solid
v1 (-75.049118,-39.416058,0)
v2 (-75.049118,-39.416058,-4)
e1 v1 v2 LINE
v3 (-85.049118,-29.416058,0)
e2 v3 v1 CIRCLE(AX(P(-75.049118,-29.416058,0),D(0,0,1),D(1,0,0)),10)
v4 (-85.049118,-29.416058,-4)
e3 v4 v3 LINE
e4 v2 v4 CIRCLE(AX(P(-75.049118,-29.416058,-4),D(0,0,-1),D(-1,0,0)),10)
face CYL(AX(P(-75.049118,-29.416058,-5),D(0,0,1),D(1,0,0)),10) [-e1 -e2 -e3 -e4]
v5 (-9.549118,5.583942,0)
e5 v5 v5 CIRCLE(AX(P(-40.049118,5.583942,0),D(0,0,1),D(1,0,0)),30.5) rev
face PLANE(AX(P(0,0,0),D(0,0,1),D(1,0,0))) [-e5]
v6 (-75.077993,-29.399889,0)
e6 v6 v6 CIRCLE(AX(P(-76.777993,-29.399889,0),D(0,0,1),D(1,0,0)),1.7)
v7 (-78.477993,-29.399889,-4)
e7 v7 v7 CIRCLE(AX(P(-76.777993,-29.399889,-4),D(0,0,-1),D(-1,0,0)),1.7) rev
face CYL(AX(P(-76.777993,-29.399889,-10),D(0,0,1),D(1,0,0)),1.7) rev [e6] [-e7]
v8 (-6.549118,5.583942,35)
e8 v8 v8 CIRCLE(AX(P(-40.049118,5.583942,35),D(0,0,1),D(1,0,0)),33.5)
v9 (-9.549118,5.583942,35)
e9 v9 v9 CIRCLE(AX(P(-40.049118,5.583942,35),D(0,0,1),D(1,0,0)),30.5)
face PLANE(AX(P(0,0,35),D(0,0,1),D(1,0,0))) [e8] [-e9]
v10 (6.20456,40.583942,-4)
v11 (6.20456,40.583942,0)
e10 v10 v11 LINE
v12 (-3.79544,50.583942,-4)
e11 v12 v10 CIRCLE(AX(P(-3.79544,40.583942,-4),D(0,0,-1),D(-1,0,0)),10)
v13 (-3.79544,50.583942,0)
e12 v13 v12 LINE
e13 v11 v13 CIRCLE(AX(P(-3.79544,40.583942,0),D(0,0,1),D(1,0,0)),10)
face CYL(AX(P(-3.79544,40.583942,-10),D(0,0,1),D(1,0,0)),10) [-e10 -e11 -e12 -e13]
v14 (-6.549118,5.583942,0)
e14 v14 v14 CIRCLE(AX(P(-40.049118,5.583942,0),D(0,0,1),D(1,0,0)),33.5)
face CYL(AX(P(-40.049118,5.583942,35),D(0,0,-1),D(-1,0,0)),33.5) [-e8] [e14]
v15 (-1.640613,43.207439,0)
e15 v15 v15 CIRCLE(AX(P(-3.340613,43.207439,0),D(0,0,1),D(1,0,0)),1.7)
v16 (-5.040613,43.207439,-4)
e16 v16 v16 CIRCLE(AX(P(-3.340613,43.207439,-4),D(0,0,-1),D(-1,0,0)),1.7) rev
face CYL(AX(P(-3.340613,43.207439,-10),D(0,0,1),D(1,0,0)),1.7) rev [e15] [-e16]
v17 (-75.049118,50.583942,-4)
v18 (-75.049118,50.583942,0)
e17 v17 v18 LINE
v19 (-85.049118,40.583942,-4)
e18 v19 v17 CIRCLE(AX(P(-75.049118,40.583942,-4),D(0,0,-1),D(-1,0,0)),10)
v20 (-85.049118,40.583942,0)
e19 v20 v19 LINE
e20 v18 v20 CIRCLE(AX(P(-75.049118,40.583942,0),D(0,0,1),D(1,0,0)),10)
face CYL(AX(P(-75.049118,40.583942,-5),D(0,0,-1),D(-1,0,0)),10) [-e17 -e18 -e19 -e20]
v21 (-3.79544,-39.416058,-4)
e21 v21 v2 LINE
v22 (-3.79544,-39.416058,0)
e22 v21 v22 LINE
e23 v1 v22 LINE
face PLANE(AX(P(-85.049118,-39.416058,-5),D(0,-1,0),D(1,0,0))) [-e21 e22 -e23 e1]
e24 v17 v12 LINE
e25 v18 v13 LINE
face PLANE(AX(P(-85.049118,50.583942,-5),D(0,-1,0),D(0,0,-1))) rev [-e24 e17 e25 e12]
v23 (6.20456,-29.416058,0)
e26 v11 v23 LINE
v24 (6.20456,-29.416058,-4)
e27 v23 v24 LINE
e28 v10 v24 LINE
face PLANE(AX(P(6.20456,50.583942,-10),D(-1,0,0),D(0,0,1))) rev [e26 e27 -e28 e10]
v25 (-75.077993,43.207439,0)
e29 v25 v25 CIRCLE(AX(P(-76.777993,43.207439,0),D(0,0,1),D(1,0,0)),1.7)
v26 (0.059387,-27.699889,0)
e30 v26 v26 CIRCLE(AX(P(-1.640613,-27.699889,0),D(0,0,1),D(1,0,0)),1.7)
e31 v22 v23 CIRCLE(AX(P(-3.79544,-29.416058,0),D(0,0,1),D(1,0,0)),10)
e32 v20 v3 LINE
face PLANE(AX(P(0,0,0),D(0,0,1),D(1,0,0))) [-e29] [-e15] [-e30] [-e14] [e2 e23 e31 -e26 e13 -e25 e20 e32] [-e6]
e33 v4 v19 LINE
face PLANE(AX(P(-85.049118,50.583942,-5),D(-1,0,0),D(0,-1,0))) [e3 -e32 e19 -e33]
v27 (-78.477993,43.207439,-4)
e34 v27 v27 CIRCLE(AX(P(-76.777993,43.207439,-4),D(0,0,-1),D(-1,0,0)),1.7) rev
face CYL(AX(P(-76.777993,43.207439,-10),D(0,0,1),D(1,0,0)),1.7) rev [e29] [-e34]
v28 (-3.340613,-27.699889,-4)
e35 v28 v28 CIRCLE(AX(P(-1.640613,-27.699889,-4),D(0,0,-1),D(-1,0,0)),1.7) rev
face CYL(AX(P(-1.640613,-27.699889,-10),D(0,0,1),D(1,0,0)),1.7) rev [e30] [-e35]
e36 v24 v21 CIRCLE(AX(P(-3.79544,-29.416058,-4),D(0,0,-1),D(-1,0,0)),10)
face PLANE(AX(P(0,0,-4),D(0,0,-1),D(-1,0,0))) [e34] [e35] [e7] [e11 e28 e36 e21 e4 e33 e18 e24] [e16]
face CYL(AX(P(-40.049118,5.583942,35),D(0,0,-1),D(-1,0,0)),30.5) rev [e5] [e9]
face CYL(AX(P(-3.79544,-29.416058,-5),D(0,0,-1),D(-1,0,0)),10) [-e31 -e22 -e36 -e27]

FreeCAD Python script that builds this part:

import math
import FreeCAD as App
import Part
import Sketcher
from FreeCAD import Vector
Q = App.Units.Quantity


def edges_at(feature, points):
    """Names of the edges that pass closest to the given points."""
    edges = feature.Shape.Edges
    near = lambda p: min(range(len(edges)), key=lambda i: edges[i].distToShape(Part.Vertex(*p))[0])
    return sorted({f"Edge{near(p) + 1}" for p in points})

doc = App.newDocument("Part")
body = doc.addObject("PartDesign::Body", "Body")

sketch1 = doc.addObject("Sketcher::SketchObject", "Sketch")
body.addObject(sketch1)
sketch1.AttachmentSupport = (doc.XY_Plane, [""])
sketch1.MapMode = "FlatFace"
sketch1.addGeometry([
    Part.LineSegment(Vector(-85, 51, 0), Vector(-85, -39, 0)),
    Part.LineSegment(Vector(-85, -39, 0), Vector(85, -39, 0)),
    Part.LineSegment(Vector(85, -39, 0), Vector(85, 51, 0)),
    Part.LineSegment(Vector(85, 51, 0), Vector(-85, 51, 0)),
], False)
sketch1.addConstraint([
    Sketcher.Constraint("Coincident", 0, 2, 1, 1),
    Sketcher.Constraint("Coincident", 1, 2, 2, 1),
    Sketcher.Constraint("Coincident", 2, 2, 3, 1),
    Sketcher.Constraint("Coincident", 3, 2, 0, 1),
    Sketcher.Constraint("Vertical", 0),
    Sketcher.Constraint("Horizontal", 1),
    Sketcher.Constraint("Vertical", 2),
    Sketcher.Constraint("Horizontal", 3),
    Sketcher.Constraint("DistanceX", 1, 1, 1, 2, Q("170 mm")),
    Sketcher.Constraint("DistanceY", 0, 2, 0, 1, Q("90 mm")),
    Sketcher.Constraint("DistanceY", 0, 2, -1, 1, Q("39.416058 mm")),
    Sketcher.Constraint("DistanceX", 0, 2, -1, 1, Q("85.049118 mm")),
])
pad1 = doc.addObject("PartDesign::Pad", "Pad")
body.addObject(pad1)
pad1.Profile = sketch1
pad1.Length = 5
pad1.Reversed = True

sketch2 = doc.addObject("Sketcher::SketchObject", "Sketch001")
body.addObject(sketch2)
sketch2.AttachmentSupport = (doc.XY_Plane, [""])
sketch2.MapMode = "FlatFace"
sketch2.addGeometry([
    Part.LineSegment(Vector(-85, 50.6, 0), Vector(-85, -39.4, 0)),
    Part.LineSegment(Vector(-85, -39.4, 0), Vector(85, -39.4, 0)),
    Part.LineSegment(Vector(85, -39.4, 0), Vector(85, 50.6, 0)),
    Part.LineSegment(Vector(85, 50.6, 0), Vector(-85, 50.6, 0)),
    Part.Circle(Vector(-77.3, -32.2, 0), Vector(0, 0, 1), 3),
    Part.Circle(Vector(75.4, -30.5, 0), Vector(0, 0, 1), 3),
    Part.Circle(Vector(-77.3, 42.8, 0), Vector(0, 0, 1), 3),
    Part.LineSegment(Vector(65.6, -34.4, 0), Vector(-65.7, -34.4, 0)),
    Part.ArcOfCircle(Part.Circle(Vector(-85, -39.4, 0), Vector(0, 0, 1), 20), math.radians(14), math.radians(76)),
    Part.LineSegment(Vector(-80, -20.1, 0), Vector(-80, 31.2, 0)),
    Part.ArcOfCircle(Part.Circle(Vector(-85, 50.6, 0), Vector(0, 0, 1), 20), math.radians(-76), math.radians(-14)),
    Part.LineSegment(Vector(-65.7, 45.6, 0), Vector(65.6, 45.6, 0)),
    Part.ArcOfCircle(Part.Circle(Vector(85, 50.6, 0), Vector(0, 0, 1), 20), math.radians(-166), math.radians(-104)),
    Part.LineSegment(Vector(80, 31.2, 0), Vector(80, -20.1, 0)),
    Part.ArcOfCircle(Part.Circle(Vector(85, -39.4, 0), Vector(0, 0, 1), 20), math.radians(104), math.radians(166)),
    Part.Circle(Vector(75.4, 41.5, 0), Vector(0, 0, 1), 3),
], False)
sketch2.addConstraint([
    Sketcher.Constraint("Coincident", 0, 2, 1, 1),
    Sketcher.Constraint("Coincident", 1, 2, 2, 1),
    Sketcher.Constraint("Coincident", 2, 2, 3, 1),
    Sketcher.Constraint("Coincident", 3, 2, 0, 1),
    Sketcher.Constraint("Coincident", 7, 2, 8, 1),
    Sketcher.Constraint("Coincident", 8, 2, 9, 1),
    Sketcher.Constraint("Coincident", 9, 2, 10, 1),
    Sketcher.Constraint("Coincident", 10, 2, 11, 1),
    Sketcher.Constraint("Coincident", 11, 2, 12, 1),
    Sketcher.Constraint("Coincident", 12, 2, 13, 1),
    Sketcher.Constraint("Coincident", 13, 2, 14, 1),
    Sketcher.Constraint("Coincident", 14, 2, 7, 1),
    Sketcher.Constraint("Vertical", 0),
    Sketcher.Constraint("Horizontal", 1),
    Sketcher.Constraint("Vertical", 2),
    Sketcher.Constraint("Horizontal", 3),
    Sketcher.Constraint("Horizontal", 7),
    Sketcher.Constraint("Vertical", 9),
    Sketcher.Constraint("Horizontal", 11),
    Sketcher.Constraint("Vertical", 13),
    Sketcher.Constraint("Coincident", 0, 2, 8, 3),
    Sketcher.Constraint("Coincident", 1, 2, 14, 3),
    Sketcher.Constraint("Coincident", 2, 2, 12, 3),
    Sketcher.Constraint("Coincident", 3, 2, 10, 3),
    Sketcher.Constraint("Equal", 4, 5),
    Sketcher.Constraint("Equal", 5, 6),
    Sketcher.Constraint("Equal", 8, 10),
    Sketcher.Constraint("Equal", 10, 12),
    Sketcher.Constraint("Equal", 12, 14),
    Sketcher.Constraint("Equal", 6, 15),
    Sketcher.Constraint("Horizontal", 9, 2, 12, 2),
    Sketcher.Constraint("Vertical", 4, 3, 6, 3),
    Sketcher.Constraint("Vertical", 5, 3, 15, 3),
    Sketcher.Constraint("Vertical", 7, 2, 10, 2),
    Sketcher.Constraint("Diameter", 4, Q("6 mm")),
    Sketcher.Constraint("Radius", 8, Q("20 mm")),
    Sketcher.Constraint("DistanceX", 1, 1, 1, 2, Q("170 mm")),
    Sketcher.Constraint("DistanceY", 0, 2, 0, 1, Q("90 mm")),
    Sketcher.Constraint("DistanceY", 0, 2, 7, 2, Q("5 mm")),
    Sketcher.Constraint("DistanceX", 0, 2, 8, 2, Q("5 mm")),
    Sketcher.Constraint("DistanceY", 4, 3, 5, 3, Q("1.7 mm")),
    Sketcher.Constraint("DistanceX", 7, 2, -1, 1, Q("65.684201 mm")),
    Sketcher.Constraint("DistanceY", 15, 3, 6, 3, Q("1.360798 mm")),
    Sketcher.Constraint("DistanceX", 4, 3, -1, 1, Q("77.306081 mm")),
    Sketcher.Constraint("DistanceY", 8, 3, -1, 1, Q("39.416058 mm")),
    Sketcher.Constraint("DistanceY", 5, 3, 15, 3, Q("71.997759 mm")),
    Sketcher.Constraint("DistanceY", 4, 3, 8, 2, Q("12.180141 mm")),
    Sketcher.Constraint("DistanceX", 11, 2, 15, 3, Q("9.80553 mm")),
])
pad2 = doc.addObject("PartDesign::Pad", "Pad001")
body.addObject(pad2)
pad2.Profile = sketch2
pad2.Length = 10
pad2.Reversed = True

sketch3 = doc.addObject("Sketcher::SketchObject", "Sketch002")
body.addObject(sketch3)
sketch3.AttachmentSupport = (doc.XY_Plane, [""])
sketch3.MapMode = "FlatFace"
sketch3.addGeometry([
    Part.Circle(Vector(-40, 6, 0), Vector(0, 0, 1), 34),
    Part.Circle(Vector(-40, 6, 0), Vector(0, 0, 1), 30),
], False)
sketch3.addConstraint([
    Sketcher.Constraint("Coincident", 1, 3, 0, 3),
    Sketcher.Constraint("Diameter", 0, Q("67 mm")),
    Sketcher.Constraint("Diameter", 1, Q("61 mm")),
    Sketcher.Constraint("DistanceY", -1, 1, 0, 3, Q("5.583942 mm")),
    Sketcher.Constraint("DistanceX", 0, 3, -1, 1, Q("40.049118 mm")),
])
pad3 = doc.addObject("PartDesign::Pad", "Pad002")
body.addObject(pad3)
pad3.Profile = sketch3
pad3.Length = 35

sketch4 = doc.addObject("Sketcher::SketchObject", "Sketch003")
body.addObject(sketch4)
sketch4.AttachmentSupport = (doc.XY_Plane, [""])
sketch4.MapMode = "FlatFace"
sketch4.addGeometry([
    Part.ArcOfCircle(Part.Circle(Vector(-85, -39, 0), Vector(0, 0, 1), 20), math.radians(14), math.radians(76)),
    Part.LineSegment(Vector(-66, -34, 0), Vector(66, -34, 0)),
    Part.ArcOfCircle(Part.Circle(Vector(85, -39, 0), Vector(0, 0, 1), 20), math.radians(104), math.radians(166)),
    Part.LineSegment(Vector(80, -20, 0), Vector(80, 31, 0)),
    Part.ArcOfCircle(Part.Circle(Vector(85, 51, 0), Vector(0, 0, 1), 20), math.radians(-166), math.radians(-104)),
    Part.LineSegment(Vector(66, 46, 0), Vector(-66, 46, 0)),
    Part.ArcOfCircle(Part.Circle(Vector(-85, 51, 0), Vector(0, 0, 1), 20), math.radians(-76), math.radians(-14)),
    Part.LineSegment(Vector(-80, 31, 0), Vector(-80, -20, 0)),
    Part.Circle(Vector(-40, 6, 0), Vector(0, 0, 1), 34),
], False)
sketch4.addConstraint([
    Sketcher.Constraint("Coincident", 0, 1, 1, 1),
    Sketcher.Constraint("Coincident", 1, 2, 2, 2),
    Sketcher.Constraint("Coincident", 2, 1, 3, 1),
    Sketcher.Constraint("Coincident", 3, 2, 4, 2),
    Sketcher.Constraint("Coincident", 4, 1, 5, 1),
    Sketcher.Constraint("Coincident", 5, 2, 6, 2),
    Sketcher.Constraint("Coincident", 6, 1, 7, 1),
    Sketcher.Constraint("Coincident", 7, 2, 0, 2),
    Sketcher.Constraint("Horizontal", 1),
    Sketcher.Constraint("Vertical", 3),
    Sketcher.Constraint("Horizontal", 5),
    Sketcher.Constraint("Vertical", 7),
    Sketcher.Constraint("Equal", 0, 2),
    Sketcher.Constraint("Equal", 2, 4),
    Sketcher.Constraint("Equal", 4, 6),
    Sketcher.Constraint("Horizontal", 0, 3, 2, 3),
    Sketcher.Constraint("Horizontal", 4, 3, 6, 3),
    Sketcher.Constraint("Horizontal", 3, 2, 6, 1),
    Sketcher.Constraint("Horizontal", 2, 1, 7, 2),
    Sketcher.Constraint("Vertical", 2, 3, 4, 3),
    Sketcher.Constraint("Vertical", 1, 2, 4, 1),
    Sketcher.Constraint("Diameter", 8, Q("67 mm")),
    Sketcher.Constraint("Radius", 0, Q("20 mm")),
    Sketcher.Constraint("DistanceX", 0, 3, 2, 3, Q("170 mm")),
    Sketcher.Constraint("DistanceY", 2, 3, 4, 3, Q("90 mm")),
    Sketcher.Constraint("DistanceX", 0, 3, 8, 3, Q("45 mm")),
    Sketcher.Constraint("DistanceY", 0, 3, 8, 3, Q("45 mm")),
    Sketcher.Constraint("DistanceY", 0, 3, 0, 1, Q("5 mm")),
    Sketcher.Constraint("DistanceX", 2, 1, 2, 3, Q("5 mm")),
    Sketcher.Constraint("DistanceX", 0, 1, -1, 1, Q("65.684201 mm")),
    Sketcher.Constraint("DistanceY", 0, 3, -1, 1, Q("39.416058 mm")),
])
pad4 = doc.addObject("PartDesign::Pad", "Pad003")
body.addObject(pad4)
pad4.Profile = sketch4
pad4.Length = 10
pad4.Reversed = True

sketch5 = doc.addObject("Sketcher::SketchObject", "Sketch004")
body.addObject(sketch5)
sketch5.AttachmentSupport = (doc.XY_Plane, [""])
sketch5.MapMode = "FlatFace"
sketch5.addGeometry([
    Part.LineSegment(Vector(6, 51, 0), Vector(6, -39, 0)),
    Part.LineSegment(Vector(6, -39, 0), Vector(85, -39, 0)),
    Part.LineSegment(Vector(85, -39, 0), Vector(85, 51, 0)),
    Part.LineSegment(Vector(85, 51, 0), Vector(6, 51, 0)),
], False)
sketch5.addConstraint([
    Sketcher.Constraint("Coincident", 0, 2, 1, 1),
    Sketcher.Constraint("Coincident", 1, 2, 2, 1),
    Sketcher.Constraint("Coincident", 2, 2, 3, 1),
    Sketcher.Constraint("Coincident", 3, 2, 0, 1),
    Sketcher.Constraint("Vertical", 0),
    Sketcher.Constraint("Horizontal", 1),
    Sketcher.Constraint("Vertical", 2),
    Sketcher.Constraint("Horizontal", 3),
    Sketcher.Constraint("DistanceY", 0, 2, 0, 1, Q("90 mm")),
    Sketcher.Constraint("DistanceX", 1, 1, 1, 2, Q("78.746323 mm")),
    Sketcher.Constraint("DistanceX", -1, 1, 0, 2, Q("6.20456 mm")),
    Sketcher.Constraint("DistanceY", 0, 2, -1, 1, Q("39.416058 mm")),
])
pocket1 = doc.addObject("PartDesign::Pocket", "Pocket")
body.addObject(pocket1)
pocket1.Profile = sketch5
pocket1.Length = 10

sketch6 = doc.addObject("Sketcher::SketchObject", "Sketch005")
body.addObject(sketch6)
sketch6.AttachmentSupport = (doc.XY_Plane, [""])
sketch6.MapMode = "FlatFace"
sketch6.addGeometry([
    Part.Circle(Vector(-76.8, 43.2, 0), Vector(0, 0, 1), 1.7),
    Part.Circle(Vector(-3.3, 43.2, 0), Vector(0, 0, 1), 1.7),
    Part.Circle(Vector(-76.8, -29.4, 0), Vector(0, 0, 1), 1.7),
    Part.Circle(Vector(-1.6, -27.7, 0), Vector(0, 0, 1), 1.7),
], False)
sketch6.addConstraint([
    Sketcher.Constraint("Equal", 0, 1),
    Sketcher.Constraint("Equal", 1, 2),
    Sketcher.Constraint("Equal", 2, 3),
    Sketcher.Constraint("Horizontal", 0, 3, 1, 3),
    Sketcher.Constraint("Vertical", 0, 3, 2, 3),
    Sketcher.Constraint("Diameter", 0, Q("3.4 mm")),
    Sketcher.Constraint("DistanceX", 1, 3, 3, 3, Q("1.7 mm")),
    Sketcher.Constraint("DistanceY", 2, 3, 3, 3, Q("1.7 mm")),
    Sketcher.Constraint("DistanceY", -1, 1, 0, 3, Q("43.207439 mm")),
    Sketcher.Constraint("DistanceY", 2, 3, -1, 1, Q("29.399889 mm")),
    Sketcher.Constraint("DistanceX", 0, 3, 1, 3, Q("73.437381 mm")),
    Sketcher.Constraint("DistanceX", 0, 3, -1, 1, Q("76.777993 mm")),
])
pocket2 = doc.addObject("PartDesign::Pocket", "Pocket001")
body.addObject(pocket2)
pocket2.Profile = sketch6
pocket2.Length = 10

sketch7 = doc.addObject("Sketcher::SketchObject", "Sketch006")
body.addObject(sketch7)
sketch7.AttachmentSupport = (doc.XY_Plane, [""])
sketch7.MapMode = "FlatFace"
sketch7.AttachmentOffset = App.Placement(Vector(0, 0, -10), App.Rotation())
sketch7.addGeometry([
    Part.LineSegment(Vector(6, 51, 0), Vector(6, -39, 0)),
    Part.LineSegment(Vector(6, -39, 0), Vector(-85, -39, 0)),
    Part.LineSegment(Vector(-85, -39, 0), Vector(-85, 51, 0)),
    Part.LineSegment(Vector(-85, 51, 0), Vector(6, 51, 0)),
], False)
sketch7.addConstraint([
    Sketcher.Constraint("Coincident", 0, 2, 1, 1),
    Sketcher.Constraint("Coincident", 1, 2, 2, 1),
    Sketcher.Constraint("Coincident", 2, 2, 3, 1),
    Sketcher.Constraint("Coincident", 3, 2, 0, 1),
    Sketcher.Constraint("Vertical", 0),
    Sketcher.Constraint("Horizontal", 1),
    Sketcher.Constraint("Vertical", 2),
    Sketcher.Constraint("Horizontal", 3),
    Sketcher.Constraint("DistanceY", 0, 2, 0, 1, Q("90 mm")),
    Sketcher.Constraint("DistanceX", 1, 2, 1, 1, Q("91.253677 mm")),
    Sketcher.Constraint("DistanceX", -1, 1, 0, 2, Q("6.20456 mm")),
    Sketcher.Constraint("DistanceY", 0, 2, -1, 1, Q("39.416058 mm")),
])
pocket3 = doc.addObject("PartDesign::Pocket", "Pocket002")
body.addObject(pocket3)
pocket3.Profile = sketch7
pocket3.Length = 6
pocket3.Reversed = True
doc.recompute()

fillet = doc.addObject("PartDesign::Fillet", "Fillet")
body.addObject(fillet)
fillet.Base = (pocket3, edges_at(pocket3, [
    (6.205, -39.416, -2),
    (6.205, 50.584, -2),
    (-85.049, -39.416, -2),
    (-85.049, 50.584, -2),
]))
fillet.Radius = 10

doc.recompute()
